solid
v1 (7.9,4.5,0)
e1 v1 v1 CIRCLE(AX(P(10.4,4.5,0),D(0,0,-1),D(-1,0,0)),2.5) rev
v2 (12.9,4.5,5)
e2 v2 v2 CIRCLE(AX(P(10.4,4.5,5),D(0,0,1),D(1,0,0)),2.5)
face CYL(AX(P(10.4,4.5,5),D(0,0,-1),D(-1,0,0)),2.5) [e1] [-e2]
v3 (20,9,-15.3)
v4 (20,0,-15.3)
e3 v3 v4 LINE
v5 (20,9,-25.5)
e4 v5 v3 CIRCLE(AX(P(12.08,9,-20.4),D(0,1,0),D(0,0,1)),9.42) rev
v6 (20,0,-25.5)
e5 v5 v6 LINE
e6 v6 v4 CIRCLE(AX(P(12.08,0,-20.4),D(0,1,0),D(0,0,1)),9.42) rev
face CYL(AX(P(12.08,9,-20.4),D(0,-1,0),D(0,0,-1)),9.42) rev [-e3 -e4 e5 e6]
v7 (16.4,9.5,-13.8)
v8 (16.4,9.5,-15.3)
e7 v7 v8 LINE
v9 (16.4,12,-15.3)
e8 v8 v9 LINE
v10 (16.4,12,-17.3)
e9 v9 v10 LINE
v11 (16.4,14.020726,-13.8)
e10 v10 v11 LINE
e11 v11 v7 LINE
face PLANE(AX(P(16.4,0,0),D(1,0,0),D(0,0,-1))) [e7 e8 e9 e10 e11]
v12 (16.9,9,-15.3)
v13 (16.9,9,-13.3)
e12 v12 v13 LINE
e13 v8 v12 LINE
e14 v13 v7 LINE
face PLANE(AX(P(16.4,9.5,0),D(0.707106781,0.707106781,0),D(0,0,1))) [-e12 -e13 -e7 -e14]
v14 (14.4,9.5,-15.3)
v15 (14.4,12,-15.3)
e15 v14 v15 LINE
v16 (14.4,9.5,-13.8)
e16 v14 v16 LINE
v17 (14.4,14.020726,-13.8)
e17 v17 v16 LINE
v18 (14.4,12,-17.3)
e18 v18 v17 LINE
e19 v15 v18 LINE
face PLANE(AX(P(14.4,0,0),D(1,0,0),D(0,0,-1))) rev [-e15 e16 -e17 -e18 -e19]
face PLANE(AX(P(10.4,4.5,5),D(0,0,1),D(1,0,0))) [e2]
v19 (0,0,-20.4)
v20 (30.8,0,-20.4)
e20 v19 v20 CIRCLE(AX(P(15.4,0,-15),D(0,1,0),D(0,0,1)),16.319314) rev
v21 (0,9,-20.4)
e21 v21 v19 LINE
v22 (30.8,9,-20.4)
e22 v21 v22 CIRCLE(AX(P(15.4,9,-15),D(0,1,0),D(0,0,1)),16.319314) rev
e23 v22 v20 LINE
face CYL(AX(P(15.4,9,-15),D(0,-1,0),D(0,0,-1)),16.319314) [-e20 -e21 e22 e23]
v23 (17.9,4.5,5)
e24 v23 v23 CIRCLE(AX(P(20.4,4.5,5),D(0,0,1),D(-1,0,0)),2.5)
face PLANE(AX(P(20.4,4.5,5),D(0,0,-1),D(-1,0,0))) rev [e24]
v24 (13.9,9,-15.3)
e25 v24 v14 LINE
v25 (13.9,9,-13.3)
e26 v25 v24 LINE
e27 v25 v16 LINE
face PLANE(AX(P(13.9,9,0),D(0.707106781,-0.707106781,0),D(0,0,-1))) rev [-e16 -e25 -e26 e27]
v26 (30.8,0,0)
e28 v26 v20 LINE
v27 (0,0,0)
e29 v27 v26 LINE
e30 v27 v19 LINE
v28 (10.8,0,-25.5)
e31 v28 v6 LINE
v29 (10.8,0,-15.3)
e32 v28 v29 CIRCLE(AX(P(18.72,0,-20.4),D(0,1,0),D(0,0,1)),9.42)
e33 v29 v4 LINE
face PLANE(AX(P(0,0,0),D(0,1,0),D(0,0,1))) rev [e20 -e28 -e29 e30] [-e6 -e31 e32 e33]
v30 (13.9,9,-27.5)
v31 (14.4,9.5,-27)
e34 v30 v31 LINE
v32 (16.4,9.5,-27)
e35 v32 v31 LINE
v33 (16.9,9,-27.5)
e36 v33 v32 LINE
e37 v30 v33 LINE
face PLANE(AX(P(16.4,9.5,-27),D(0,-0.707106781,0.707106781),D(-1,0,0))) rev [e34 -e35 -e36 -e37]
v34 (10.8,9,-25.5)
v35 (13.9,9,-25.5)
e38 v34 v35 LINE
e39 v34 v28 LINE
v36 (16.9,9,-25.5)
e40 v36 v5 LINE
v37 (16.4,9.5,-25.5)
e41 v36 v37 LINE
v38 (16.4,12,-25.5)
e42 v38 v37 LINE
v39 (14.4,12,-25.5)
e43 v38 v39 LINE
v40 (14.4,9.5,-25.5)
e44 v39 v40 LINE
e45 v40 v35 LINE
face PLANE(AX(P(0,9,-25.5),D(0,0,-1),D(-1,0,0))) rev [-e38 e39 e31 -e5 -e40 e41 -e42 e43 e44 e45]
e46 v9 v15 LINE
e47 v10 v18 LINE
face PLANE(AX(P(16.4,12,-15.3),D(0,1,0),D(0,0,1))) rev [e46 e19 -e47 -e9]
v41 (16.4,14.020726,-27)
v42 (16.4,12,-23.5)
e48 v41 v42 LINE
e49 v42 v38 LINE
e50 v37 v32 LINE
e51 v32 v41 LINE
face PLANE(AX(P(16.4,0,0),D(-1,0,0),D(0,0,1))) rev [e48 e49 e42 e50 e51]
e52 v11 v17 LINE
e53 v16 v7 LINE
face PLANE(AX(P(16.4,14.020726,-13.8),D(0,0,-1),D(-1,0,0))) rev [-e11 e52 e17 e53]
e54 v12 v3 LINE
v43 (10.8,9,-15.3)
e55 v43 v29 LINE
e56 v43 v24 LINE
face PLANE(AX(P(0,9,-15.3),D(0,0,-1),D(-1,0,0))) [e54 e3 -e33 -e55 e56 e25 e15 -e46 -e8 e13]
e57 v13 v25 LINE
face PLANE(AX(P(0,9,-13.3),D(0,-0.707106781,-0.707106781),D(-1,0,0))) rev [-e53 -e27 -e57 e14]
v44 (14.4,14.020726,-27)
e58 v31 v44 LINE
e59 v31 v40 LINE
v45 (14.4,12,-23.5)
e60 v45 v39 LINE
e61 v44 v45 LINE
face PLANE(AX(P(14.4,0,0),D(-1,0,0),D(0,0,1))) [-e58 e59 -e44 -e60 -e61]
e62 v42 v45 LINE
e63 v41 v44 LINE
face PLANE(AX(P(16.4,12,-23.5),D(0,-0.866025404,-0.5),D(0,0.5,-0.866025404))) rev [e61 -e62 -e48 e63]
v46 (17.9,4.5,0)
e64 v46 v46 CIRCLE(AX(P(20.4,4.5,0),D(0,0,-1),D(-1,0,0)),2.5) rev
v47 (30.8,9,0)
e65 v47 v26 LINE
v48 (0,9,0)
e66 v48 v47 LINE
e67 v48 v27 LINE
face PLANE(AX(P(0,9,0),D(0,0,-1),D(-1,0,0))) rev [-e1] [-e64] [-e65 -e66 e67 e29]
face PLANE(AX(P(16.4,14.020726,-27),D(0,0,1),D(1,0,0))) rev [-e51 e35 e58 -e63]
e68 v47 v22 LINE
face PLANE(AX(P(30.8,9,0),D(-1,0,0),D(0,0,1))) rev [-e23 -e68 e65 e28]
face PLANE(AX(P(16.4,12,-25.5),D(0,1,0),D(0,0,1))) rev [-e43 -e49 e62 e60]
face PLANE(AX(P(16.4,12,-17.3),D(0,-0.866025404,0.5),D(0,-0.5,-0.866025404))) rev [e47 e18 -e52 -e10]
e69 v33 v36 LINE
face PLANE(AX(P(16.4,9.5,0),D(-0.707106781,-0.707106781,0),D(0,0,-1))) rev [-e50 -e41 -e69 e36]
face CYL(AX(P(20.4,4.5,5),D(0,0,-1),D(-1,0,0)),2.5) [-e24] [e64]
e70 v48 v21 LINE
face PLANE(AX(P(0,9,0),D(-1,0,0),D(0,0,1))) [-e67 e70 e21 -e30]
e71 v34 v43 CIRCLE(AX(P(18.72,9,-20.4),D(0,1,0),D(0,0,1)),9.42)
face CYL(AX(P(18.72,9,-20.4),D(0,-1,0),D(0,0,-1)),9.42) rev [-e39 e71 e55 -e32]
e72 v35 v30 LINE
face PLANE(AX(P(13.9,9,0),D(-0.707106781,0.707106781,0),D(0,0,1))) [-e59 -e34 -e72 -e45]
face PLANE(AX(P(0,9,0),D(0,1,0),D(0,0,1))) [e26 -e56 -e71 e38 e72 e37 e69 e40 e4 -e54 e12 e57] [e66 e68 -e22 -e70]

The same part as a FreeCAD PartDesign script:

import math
import FreeCAD as App
import Part
import Sketcher
from FreeCAD import Vector
Q = App.Units.Quantity


def edges_at(feature, points):
    """Names of the edges that pass closest to the given points."""
    edges = feature.Shape.Edges
    near = lambda p: min(range(len(edges)), key=lambda i: edges[i].distToShape(Part.Vertex(*p))[0])
    return sorted({f"Edge{near(p) + 1}" for p in points})

doc = App.newDocument("Part")
params = doc.addObject("Spreadsheet::Sheet", "Params")
for row, (alias, value) in enumerate([
    ("sketch1_radius", "9.42 mm"),
    ("sketch1_width", "30.8 mm"),
    ("sketch1_width2", "9.2 mm"),
    ("sketch1_height", "20.4 mm"),
    ("pad1_length", "9 mm"),
    ("sketch2_width", "3 mm"),
    ("sketch2_height", "2 mm"),
    ("sketch2_height2", "1.5 mm"),
    ("pad2_length", "2 mm"),
    ("sketch3_diameter", "5 mm"),
    ("pad3_length", "5 mm"),
    ("chamfer_size", "0.5 mm"),
], start=1):
    params.set(f"A{row}", alias)
    params.set(f"B{row}", "=" + value)
    params.setAlias(f"B{row}", alias)

body = doc.addObject("PartDesign::Body", "Body")

# Sketch on XZ plane
sketch1 = body.newObject("Sketcher::SketchObject", "Sketch")
sketch1.AttachmentSupport = (doc.getObject("XZ_Plane"), [""])
sketch1.MapMode = "FlatFace"
sketch1.addGeometry([
    Part.LineSegment(Vector(0, -20.4, 0), Vector(0, 0, 0)),  # 0
    Part.LineSegment(Vector(0, 0, 0), Vector(30.8, 0, 0)),  # 1
    Part.LineSegment(Vector(30.8, 0, 0), Vector(30.8, -20.4, 0)),  # 2
    Part.ArcOfCircle(Part.Circle(Vector(15.4, -15, 0), Vector(0, 0, 1), 16.319314), math.radians(-160.676816), math.radians(-19.323184)),  # 3
    Part.LineSegment(Vector(20, -15.3, 0), Vector(10.8, -15.3, 0)),  # 4
    Part.ArcOfCircle(Part.Circle(Vector(18.72, -20.4, 0), Vector(0, 0, 1), 9.42), math.radians(147.220919), math.radians(212.779081)),  # 5
    Part.LineSegment(Vector(10.8, -25.5, 0), Vector(20, -25.5, 0)),  # 6
    Part.ArcOfCircle(Part.Circle(Vector(12.08, -20.4, 0), Vector(0, 0, 1), 9.42), math.radians(-32.779081), math.radians(32.779081)),  # 7
], False)
sketch1.addConstraint([
    Sketcher.Constraint("Coincident", 0, 2, 1, 1),
    Sketcher.Constraint("Coincident", 1, 2, 2, 1),
    Sketcher.Constraint("Coincident", 2, 2, 3, 2),
    Sketcher.Constraint("Coincident", 3, 1, 0, 1),
    Sketcher.Constraint("Coincident", 4, 2, 5, 1),
    Sketcher.Constraint("Coincident", 5, 2, 6, 1),
    Sketcher.Constraint("Coincident", 6, 2, 7, 1),
    Sketcher.Constraint("Coincident", 7, 2, 4, 1),
    Sketcher.Constraint("Vertical", 0),
    Sketcher.Constraint("Horizontal", 1),
    Sketcher.Constraint("Vertical", 2),
    Sketcher.Constraint("Horizontal", 4),
    Sketcher.Constraint("Horizontal", 6),
    Sketcher.Constraint("Coincident", 0, 2, -1, 1),
    Sketcher.Constraint("Equal", 5, 7),
    Sketcher.Constraint("Horizontal", 5, 3, 7, 3),
    Sketcher.Constraint("Horizontal", 7, 3, 2, 2),
    Sketcher.Constraint("Horizontal", 2, 2, 3, 1),
    Sketcher.Constraint("Vertical", 4, 2, 5, 2),
    Sketcher.Constraint("Radius", 5, Q("9.42 mm")),
    Sketcher.Constraint("DistanceX", 1, 1, 1, 2, Q("30.8 mm")),
    Sketcher.Constraint("DistanceX", 4, 2, 4, 1, Q("9.2 mm")),
    Sketcher.Constraint("DistanceY", 0, 1, 0, 2, Q("20.4 mm")),
    Sketcher.Constraint("DistanceY", 3, 3, -1, 1, Q("15 mm")),
    Sketcher.Constraint("DistanceX", -1, 1, 6, 2, Q("20 mm")),
    Sketcher.Constraint("DistanceY", 4, 2, -1, 1, Q("15.3 mm")),
])
sketch1.setExpression("Constraints[19]", "Params.sketch1_radius")
sketch1.setExpression("Constraints[20]", "Params.sketch1_width")
sketch1.setExpression("Constraints[21]", "Params.sketch1_width2")
sketch1.setExpression("Constraints[22]", "Params.sketch1_height")
pad1 = body.newObject("PartDesign::Pad", "Pad")
pad1.Profile = sketch1
pad1.setExpression("Length", "Params.pad1_length")
pad1.Reversed = True

# Sketch on YZ plane
sketch2 = body.newObject("Sketcher::SketchObject", "Sketch001")
sketch2.AttachmentSupport = (doc.getObject("YZ_Plane"), [""])
sketch2.MapMode = "FlatFace"
sketch2.AttachmentOffset = App.Placement(Vector(0, 0, 15.4), App.Rotation())
sketch2.addGeometry([
    Part.LineSegment(Vector(9, -15.3, 0), Vector(12, -15.3, 0)),  # 0
    Part.LineSegment(Vector(12, -15.3, 0), Vector(12, -17.3, 0)),  # 1
    Part.LineSegment(Vector(12, -17.3, 0), Vector(14.020726, -13.8, 0)),  # 2
    Part.LineSegment(Vector(14.020726, -13.8, 0), Vector(9, -13.8, 0)),  # 3
    Part.LineSegment(Vector(9, -13.8, 0), Vector(9, -15.3, 0)),  # 4
    Part.LineSegment(Vector(12, -25.5, 0), Vector(9, -25.5, 0)),  # 5
    Part.LineSegment(Vector(9, -25.5, 0), Vector(9, -27, 0)),  # 6
    Part.LineSegment(Vector(9, -27, 0), Vector(14.020726, -27, 0)),  # 7
    Part.LineSegment(Vector(14.020726, -27, 0), Vector(12, -23.5, 0)),  # 8
    Part.LineSegment(Vector(12, -23.5, 0), Vector(12, -25.5, 0)),  # 9
], False)
sketch2.addConstraint([
    Sketcher.Constraint("Coincident", 0, 2, 1, 1),
    Sketcher.Constraint("Coincident", 1, 2, 2, 1),
    Sketcher.Constraint("Coincident", 2, 2, 3, 1),
    Sketcher.Constraint("Coincident", 3, 2, 4, 1),
    Sketcher.Constraint("Coincident", 4, 2, 0, 1),
    Sketcher.Constraint("Coincident", 5, 2, 6, 1),
    Sketcher.Constraint("Coincident", 6, 2, 7, 1),
    Sketcher.Constraint("Coincident", 7, 2, 8, 1),
    Sketcher.Constraint("Coincident", 8, 2, 9, 1),
    Sketcher.Constraint("Coincident", 9, 2, 5, 1),
    Sketcher.Constraint("Horizontal", 0),
    Sketcher.Constraint("Vertical", 1),
    Sketcher.Constraint("Horizontal", 3),
    Sketcher.Constraint("Vertical", 4),
    Sketcher.Constraint("Horizontal", 5),
    Sketcher.Constraint("Vertical", 6),
    Sketcher.Constraint("Horizontal", 7),
    Sketcher.Constraint("Vertical", 9),
    Sketcher.Constraint("Vertical", 4, 2, 5, 2),
    Sketcher.Constraint("Vertical", 2, 2, 7, 2),
    Sketcher.Constraint("Vertical", 1, 2, 8, 2),
    Sketcher.Constraint("Equal", 4, 6),
    Sketcher.Constraint("Equal", 1, 9),
    Sketcher.Constraint("DistanceX", 0, 1, 0, 2, Q("3 mm")),
    Sketcher.Constraint("DistanceY", 1, 2, 1, 1, Q("2 mm")),
    Sketcher.Constraint("Angle", 2, Q("60 deg")),
    Sketcher.Constraint("DistanceY", 4, 2, 4, 1, Q("1.5 mm")),
    Sketcher.Constraint("DistanceX", -1, 1, 0, 2, Q("12 mm")),
    Sketcher.Constraint("DistanceY", 6, 2, -1, 1, Q("27 mm")),
    Sketcher.Constraint("DistanceY", 0, 2, -1, 1, Q("15.3 mm")),
])
sketch2.setExpression("Constraints[23]", "Params.sketch2_width")
sketch2.setExpression("Constraints[24]", "Params.sketch2_height")
sketch2.setExpression("Constraints[26]", "Params.sketch2_height2")
pad2 = body.newObject("PartDesign::Pad", "Pad001")
pad2.Profile = sketch2
pad2.setExpression("Length", "Params.pad2_length")
pad2.Midplane = True

# Sketch on XY plane
sketch3 = body.newObject("Sketcher::SketchObject", "Sketch002")
sketch3.AttachmentSupport = (doc.getObject("XY_Plane"), [""])
sketch3.MapMode = "FlatFace"
sketch3.addGeometry([
    Part.Circle(Vector(10.4, 4.5, 0), Vector(0, 0, 1), 2.5),
    Part.Circle(Vector(20.4, 4.5, 0), Vector(0, 0, 1), 2.5),
], False)
sketch3.addConstraint([
    Sketcher.Constraint("Equal", 0, 1),
    Sketcher.Constraint("Horizontal", 0, 3, 1, 3),
    Sketcher.Constraint("Diameter", 0, Q("5 mm")),
    Sketcher.Constraint("DistanceX", 0, 3, 1, 3, Q("10 mm")),
    Sketcher.Constraint("DistanceX", -1, 1, 0, 3, Q("10.4 mm")),
    Sketcher.Constraint("DistanceY", -1, 1, 0, 3, Q("4.5 mm")),
])
sketch3.setExpression("Constraints[2]", "Params.sketch3_diameter")
pad3 = body.newObject("PartDesign::Pad", "Pad002")
pad3.Profile = sketch3
pad3.setExpression("Length", "Params.pad3_length")
doc.recompute()

chamfer = body.newObject("PartDesign::Chamfer", "Chamfer")
chamfer.Base = (pad3, edges_at(pad3, [
    (14.4, 9, -14.55),
    (15.4, 9, -13.8),
    (16.4, 9, -14.55),
    (14.4, 9, -26.25),
    (15.4, 9, -27),
    (16.4, 9, -26.25),
]))
chamfer.setExpression("Size", "Params.chamfer_size")

doc.recompute()
